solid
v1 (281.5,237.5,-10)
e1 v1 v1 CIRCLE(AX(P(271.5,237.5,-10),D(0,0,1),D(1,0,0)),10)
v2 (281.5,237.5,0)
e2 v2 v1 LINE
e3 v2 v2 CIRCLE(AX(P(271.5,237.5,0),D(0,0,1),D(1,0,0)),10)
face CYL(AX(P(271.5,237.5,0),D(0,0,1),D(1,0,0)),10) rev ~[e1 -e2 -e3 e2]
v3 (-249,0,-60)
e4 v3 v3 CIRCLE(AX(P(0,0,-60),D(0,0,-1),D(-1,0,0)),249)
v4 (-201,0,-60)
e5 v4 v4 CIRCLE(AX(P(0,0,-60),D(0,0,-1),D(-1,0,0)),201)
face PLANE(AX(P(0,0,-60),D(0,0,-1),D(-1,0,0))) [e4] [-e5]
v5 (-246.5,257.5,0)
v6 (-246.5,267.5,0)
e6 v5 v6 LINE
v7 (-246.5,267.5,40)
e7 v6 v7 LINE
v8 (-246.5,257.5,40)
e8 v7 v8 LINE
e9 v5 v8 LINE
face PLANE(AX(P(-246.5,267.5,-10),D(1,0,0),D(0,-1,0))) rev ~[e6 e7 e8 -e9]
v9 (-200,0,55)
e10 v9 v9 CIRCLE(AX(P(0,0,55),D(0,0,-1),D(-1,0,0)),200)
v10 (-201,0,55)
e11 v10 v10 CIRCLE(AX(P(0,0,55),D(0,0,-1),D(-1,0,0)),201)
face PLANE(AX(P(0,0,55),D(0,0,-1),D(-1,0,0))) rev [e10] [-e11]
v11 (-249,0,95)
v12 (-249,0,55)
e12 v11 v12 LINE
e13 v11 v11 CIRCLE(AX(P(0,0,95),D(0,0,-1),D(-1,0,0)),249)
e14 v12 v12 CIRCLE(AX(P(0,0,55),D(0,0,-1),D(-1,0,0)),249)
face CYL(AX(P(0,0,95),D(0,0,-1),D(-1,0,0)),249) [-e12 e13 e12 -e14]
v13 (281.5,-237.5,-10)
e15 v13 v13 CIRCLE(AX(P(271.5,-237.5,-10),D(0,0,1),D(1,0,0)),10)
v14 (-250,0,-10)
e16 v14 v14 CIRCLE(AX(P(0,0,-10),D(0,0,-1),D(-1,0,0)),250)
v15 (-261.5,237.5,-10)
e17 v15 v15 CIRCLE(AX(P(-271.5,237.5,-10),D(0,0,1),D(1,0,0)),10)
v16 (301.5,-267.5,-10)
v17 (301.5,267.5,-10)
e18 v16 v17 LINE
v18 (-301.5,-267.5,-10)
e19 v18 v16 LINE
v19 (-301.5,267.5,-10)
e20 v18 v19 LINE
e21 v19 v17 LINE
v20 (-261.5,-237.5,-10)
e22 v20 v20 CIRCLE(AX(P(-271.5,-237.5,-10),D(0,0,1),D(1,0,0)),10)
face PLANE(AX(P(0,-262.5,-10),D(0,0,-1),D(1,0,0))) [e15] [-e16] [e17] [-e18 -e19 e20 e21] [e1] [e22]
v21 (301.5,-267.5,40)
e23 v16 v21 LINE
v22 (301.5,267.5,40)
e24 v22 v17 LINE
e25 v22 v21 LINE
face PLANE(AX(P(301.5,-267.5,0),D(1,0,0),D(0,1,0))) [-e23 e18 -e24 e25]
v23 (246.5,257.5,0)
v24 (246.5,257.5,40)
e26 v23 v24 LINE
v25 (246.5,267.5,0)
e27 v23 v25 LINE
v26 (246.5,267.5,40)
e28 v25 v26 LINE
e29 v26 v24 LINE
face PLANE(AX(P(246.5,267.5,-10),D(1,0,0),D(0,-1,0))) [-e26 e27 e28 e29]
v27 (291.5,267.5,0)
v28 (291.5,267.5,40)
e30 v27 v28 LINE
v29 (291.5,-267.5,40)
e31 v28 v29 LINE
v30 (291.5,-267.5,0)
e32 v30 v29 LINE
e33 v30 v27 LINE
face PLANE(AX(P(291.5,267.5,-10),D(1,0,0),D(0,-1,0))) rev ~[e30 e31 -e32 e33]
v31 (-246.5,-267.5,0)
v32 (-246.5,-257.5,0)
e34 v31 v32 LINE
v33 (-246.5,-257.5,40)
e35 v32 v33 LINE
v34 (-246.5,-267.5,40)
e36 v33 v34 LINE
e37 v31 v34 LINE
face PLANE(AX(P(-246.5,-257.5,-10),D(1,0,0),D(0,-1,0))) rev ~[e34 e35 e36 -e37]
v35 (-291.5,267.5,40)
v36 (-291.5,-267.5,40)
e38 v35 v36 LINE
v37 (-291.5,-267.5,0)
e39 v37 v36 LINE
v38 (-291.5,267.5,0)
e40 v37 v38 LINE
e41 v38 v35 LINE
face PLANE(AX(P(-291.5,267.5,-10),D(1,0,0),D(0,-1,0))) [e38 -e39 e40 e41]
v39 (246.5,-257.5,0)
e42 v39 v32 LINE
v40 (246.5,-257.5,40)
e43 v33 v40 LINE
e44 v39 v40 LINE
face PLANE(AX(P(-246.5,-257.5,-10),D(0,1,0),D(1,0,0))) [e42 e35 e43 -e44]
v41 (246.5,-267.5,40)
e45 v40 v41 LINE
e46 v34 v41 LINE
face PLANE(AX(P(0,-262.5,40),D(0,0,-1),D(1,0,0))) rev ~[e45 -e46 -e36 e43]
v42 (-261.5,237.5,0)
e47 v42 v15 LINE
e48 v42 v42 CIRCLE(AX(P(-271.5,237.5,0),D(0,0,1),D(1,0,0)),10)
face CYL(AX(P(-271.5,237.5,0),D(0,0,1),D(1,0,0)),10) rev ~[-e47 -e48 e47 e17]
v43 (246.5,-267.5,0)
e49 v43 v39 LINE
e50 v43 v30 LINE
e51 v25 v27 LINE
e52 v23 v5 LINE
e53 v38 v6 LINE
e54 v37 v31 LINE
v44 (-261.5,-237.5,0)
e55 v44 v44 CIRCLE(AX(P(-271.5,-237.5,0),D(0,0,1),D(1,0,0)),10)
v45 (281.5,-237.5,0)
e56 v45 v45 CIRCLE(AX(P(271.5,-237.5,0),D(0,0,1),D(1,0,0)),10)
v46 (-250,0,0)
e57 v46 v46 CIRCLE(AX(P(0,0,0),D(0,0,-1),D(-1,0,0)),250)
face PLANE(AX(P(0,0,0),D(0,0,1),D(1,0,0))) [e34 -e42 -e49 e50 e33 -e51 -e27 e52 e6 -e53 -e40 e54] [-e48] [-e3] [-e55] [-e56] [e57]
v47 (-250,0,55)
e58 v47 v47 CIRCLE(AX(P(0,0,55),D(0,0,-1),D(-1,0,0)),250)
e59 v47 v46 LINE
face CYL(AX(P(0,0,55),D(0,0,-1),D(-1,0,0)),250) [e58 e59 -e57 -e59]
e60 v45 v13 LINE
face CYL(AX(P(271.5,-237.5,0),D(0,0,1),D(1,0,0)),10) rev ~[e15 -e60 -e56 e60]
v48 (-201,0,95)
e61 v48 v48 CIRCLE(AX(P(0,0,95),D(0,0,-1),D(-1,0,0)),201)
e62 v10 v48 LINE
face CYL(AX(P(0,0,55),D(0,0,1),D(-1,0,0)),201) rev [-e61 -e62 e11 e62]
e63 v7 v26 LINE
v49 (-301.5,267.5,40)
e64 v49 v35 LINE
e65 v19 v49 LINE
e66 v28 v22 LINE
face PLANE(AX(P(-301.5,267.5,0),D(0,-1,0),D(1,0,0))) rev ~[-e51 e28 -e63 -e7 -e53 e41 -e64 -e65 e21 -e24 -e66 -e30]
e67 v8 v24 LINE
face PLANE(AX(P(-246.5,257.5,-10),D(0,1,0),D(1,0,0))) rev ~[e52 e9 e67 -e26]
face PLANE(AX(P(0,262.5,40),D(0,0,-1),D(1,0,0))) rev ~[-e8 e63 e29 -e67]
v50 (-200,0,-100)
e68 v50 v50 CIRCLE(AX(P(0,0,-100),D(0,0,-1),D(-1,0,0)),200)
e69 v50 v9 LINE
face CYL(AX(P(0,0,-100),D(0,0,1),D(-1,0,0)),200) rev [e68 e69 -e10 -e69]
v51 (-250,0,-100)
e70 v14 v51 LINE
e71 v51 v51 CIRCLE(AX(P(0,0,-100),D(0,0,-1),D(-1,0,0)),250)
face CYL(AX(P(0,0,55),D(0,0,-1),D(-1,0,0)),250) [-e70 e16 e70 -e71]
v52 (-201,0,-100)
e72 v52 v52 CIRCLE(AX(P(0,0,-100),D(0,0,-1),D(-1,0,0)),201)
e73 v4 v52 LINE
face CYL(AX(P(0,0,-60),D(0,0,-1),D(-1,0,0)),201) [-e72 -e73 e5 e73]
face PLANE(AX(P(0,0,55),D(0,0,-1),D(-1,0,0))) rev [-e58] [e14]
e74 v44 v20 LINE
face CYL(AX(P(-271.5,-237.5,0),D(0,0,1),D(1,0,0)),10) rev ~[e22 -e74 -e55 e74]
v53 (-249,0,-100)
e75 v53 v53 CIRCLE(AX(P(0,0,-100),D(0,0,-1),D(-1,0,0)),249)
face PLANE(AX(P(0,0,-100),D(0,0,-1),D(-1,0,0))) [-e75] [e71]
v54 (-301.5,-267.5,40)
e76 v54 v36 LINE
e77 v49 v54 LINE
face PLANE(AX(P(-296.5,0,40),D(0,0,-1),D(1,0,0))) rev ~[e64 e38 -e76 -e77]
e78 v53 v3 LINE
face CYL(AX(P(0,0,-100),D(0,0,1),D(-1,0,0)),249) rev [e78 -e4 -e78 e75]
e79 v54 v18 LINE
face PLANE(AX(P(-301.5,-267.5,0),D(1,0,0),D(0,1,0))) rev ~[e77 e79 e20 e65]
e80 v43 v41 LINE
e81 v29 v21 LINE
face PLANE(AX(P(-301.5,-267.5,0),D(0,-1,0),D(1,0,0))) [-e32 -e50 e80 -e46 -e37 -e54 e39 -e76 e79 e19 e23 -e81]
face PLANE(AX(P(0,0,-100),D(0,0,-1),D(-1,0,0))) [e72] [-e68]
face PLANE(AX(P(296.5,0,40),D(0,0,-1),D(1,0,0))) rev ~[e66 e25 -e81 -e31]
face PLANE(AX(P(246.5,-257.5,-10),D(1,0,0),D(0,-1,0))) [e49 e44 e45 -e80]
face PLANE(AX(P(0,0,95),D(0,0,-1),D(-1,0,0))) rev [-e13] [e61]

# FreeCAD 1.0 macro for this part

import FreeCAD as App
import Part
import Sketcher

V = App.Vector


def add_polygon(sketch, points):
    """Adds a closed chain of lines whose ends are joined by coincident constraints."""
    first, n = sketch.GeometryCount, len(points)
    for a, b in zip(points, points[1:] + points[:1]):
        sketch.addGeometry(Part.LineSegment(App.Vector(*a, 0), App.Vector(*b, 0)), False)
    for i in range(n):
        sketch.addConstraint(Sketcher.Constraint("Coincident", first + i, 2, first + (i + 1) % n, 1))

doc = App.newDocument("Part")
body = doc.addObject("PartDesign::Body", "Body")

# Sketch on XZ plane
sketch1 = body.newObject("Sketcher::SketchObject", "Sketch")
sketch1.AttachmentSupport = (doc.getObject("XZ_Plane"), [""])
sketch1.MapMode = "FlatFace"
add_polygon(sketch1, [(-201, -100), (-200, -100), (-200, 55), (-201, 55), (-201, 95), (-249, 95), (-249, 55), (-250, 55), (-250, -100), (-249, -100), (-249, -60), (-201, -60)])  # lines 0-11
sketch1.addConstraint([
    Sketcher.Constraint("Horizontal", 0),
    Sketcher.Constraint("Vertical", 1),
    Sketcher.Constraint("Horizontal", 2),
    Sketcher.Constraint("Vertical", 3),
    Sketcher.Constraint("Horizontal", 4),
    Sketcher.Constraint("Vertical", 5),
    Sketcher.Constraint("Horizontal", 6),
    Sketcher.Constraint("Vertical", 7),
    Sketcher.Constraint("Horizontal", 8),
    Sketcher.Constraint("Vertical", 9),
    Sketcher.Constraint("Horizontal", 10),
    Sketcher.Constraint("Vertical", 11),
    Sketcher.Constraint("Horizontal", 2, 2, 5, 2),
    Sketcher.Constraint("Horizontal", 0, 2, 7, 2),
    Sketcher.Constraint("Vertical", 5, 2, 8, 2),
    Sketcher.Constraint("Vertical", 3, 2, 10, 2),
    Sketcher.Constraint("Equal", 2, 6),
    Sketcher.Constraint("Equal", 5, 9),
    Sketcher.Constraint("DistanceX", 0, 1, 0, 2, 1.0),
    Sketcher.Constraint("DistanceX", 4, 2, 4, 1, 48.0),
    Sketcher.Constraint("DistanceY", 1, 1, 1, 2, 155.0),
    Sketcher.Constraint("DistanceY", 3, 1, 3, 2, 40.0),
    Sketcher.Constraint("DistanceX", 0, 2, -1, 1, 200.0),
    Sketcher.Constraint("DistanceY", 0, 2, -1, 1, 100.0),
])
revolution = body.newObject("PartDesign::Revolution", "Revolution")
revolution.Profile = sketch1
revolution.ReferenceAxis = (sketch1, ["V_Axis"])
revolution.Angle = 360

# Sketch on XY plane
sketch2 = body.newObject("Sketcher::SketchObject", "Sketch001")
sketch2.AttachmentSupport = (doc.getObject("XY_Plane"), [""])
sketch2.MapMode = "FlatFace"
add_polygon(sketch2, [(-302, 268), (-302, -268), (302, -268), (302, 268)])  # lines 0-3
sketch2.addGeometry(Part.Circle(V(-272, -238, 0), V(0, 0, 1), 10), False)  # 4
sketch2.addGeometry(Part.Circle(V(272, -238, 0), V(0, 0, 1), 10), False)  # 5
sketch2.addGeometry(Part.Circle(V(-272, 238, 0), V(0, 0, 1), 10), False)  # 6
sketch2.addGeometry(Part.Circle(V(0, 0, 0), V(0, 0, 1), 201), False)  # 7
sketch2.addGeometry(Part.Circle(V(272, 238, 0), V(0, 0, 1), 10), False)  # 8
sketch2.addConstraint([
    Sketcher.Constraint("Vertical", 0),
    Sketcher.Constraint("Horizontal", 1),
    Sketcher.Constraint("Vertical", 2),
    Sketcher.Constraint("Horizontal", 3),
    Sketcher.Constraint("Coincident", 7, 3, -1, 1),
    Sketcher.Constraint("Equal", 4, 5),
    Sketcher.Constraint("Equal", 5, 6),
    Sketcher.Constraint("Equal", 6, 8),
    Sketcher.Constraint("Symmetric", 5, 3, 6, 3, -1, 1),
    Sketcher.Constraint("Symmetric", 4, 3, 8, 3, -1, 1),
    Sketcher.Constraint("Symmetric", 0, 2, 2, 2, -1, 1),
    Sketcher.Constraint("Symmetric", 4, 3, 5, 3, -2),
    Sketcher.Constraint("Diameter", 4, 20.0),
    Sketcher.Constraint("Diameter", 7, 402.0),
    Sketcher.Constraint("DistanceX", 1, 1, 1, 2, 603.0),
    Sketcher.Constraint("DistanceY", 0, 2, 0, 1, 535.0),
    Sketcher.Constraint("DistanceX", 4, 3, 5, 3, 543.0),
    Sketcher.Constraint("DistanceY", 4, 3, 6, 3, 475.0),
])
pad1 = body.newObject("PartDesign::Pad", "Pad")
pad1.Profile = sketch2
pad1.Length = 10
pad1.Reversed = True

# Sketch on XY plane
sketch3 = body.newObject("Sketcher::SketchObject", "Sketch002")
sketch3.AttachmentSupport = (doc.getObject("XY_Plane"), [""])
sketch3.MapMode = "FlatFace"
sketch3.AttachmentOffset = App.Placement(V(0, 0, -10), App.Rotation())
add_polygon(sketch3, [(-246, -268), (-246, -258), (246, -258), (246, -268)])  # lines 0-3
add_polygon(sketch3, [(-302, -268), (-302, 268), (-292, 268), (-292, -268)])  # lines 4-7
add_polygon(sketch3, [(-246, 258), (-246, 268), (246, 268), (246, 258)])  # lines 8-11
add_polygon(sketch3, [(292, -268), (292, 268), (302, 268), (302, -268)])  # lines 12-15
sketch3.addConstraint([
    Sketcher.Constraint("Vertical", 0),
    Sketcher.Constraint("Horizontal", 1),
    Sketcher.Constraint("Vertical", 2),
    Sketcher.Constraint("Horizontal", 3),
    Sketcher.Constraint("Vertical", 4),
    Sketcher.Constraint("Horizontal", 5),
    Sketcher.Constraint("Vertical", 6),
    Sketcher.Constraint("Horizontal", 7),
    Sketcher.Constraint("Vertical", 8),
    Sketcher.Constraint("Horizontal", 9),
    Sketcher.Constraint("Vertical", 10),
    Sketcher.Constraint("Horizontal", 11),
    Sketcher.Constraint("Vertical", 12),
    Sketcher.Constraint("Horizontal", 13),
    Sketcher.Constraint("Vertical", 14),
    Sketcher.Constraint("Horizontal", 15),
    Sketcher.Constraint("Symmetric", 2, 2, 8, 2, -1, 1),
    Sketcher.Constraint("Symmetric", 0, 2, 10, 2, -1, 1),
    Sketcher.Constraint("Symmetric", 6, 2, 12, 2, -1, 1),
    Sketcher.Constraint("Symmetric", 4, 2, 14, 2, -1, 1),
    Sketcher.Constraint("Horizontal", 3, 2, 6, 2),
    Sketcher.Constraint("Horizontal", 5, 2, 8, 2),
    Sketcher.Constraint("Vertical", 3, 2, 8, 2),
    Sketcher.Constraint("Equal", 15, 0),
    Sketcher.Constraint("DistanceX", 1, 1, 1, 2, 493.0),
    Sketcher.Constraint("DistanceX", 5, 1, 5, 2, 10.0),
    Sketcher.Constraint("DistanceY", 4, 1, 4, 2, 535.0),
    Sketcher.Constraint("DistanceX", 4, 2, 0, 2, 55.0),
])
pad2 = body.newObject("PartDesign::Pad", "Pad001")
pad2.Profile = sketch3
pad2.Length = 50

doc.recompute()
